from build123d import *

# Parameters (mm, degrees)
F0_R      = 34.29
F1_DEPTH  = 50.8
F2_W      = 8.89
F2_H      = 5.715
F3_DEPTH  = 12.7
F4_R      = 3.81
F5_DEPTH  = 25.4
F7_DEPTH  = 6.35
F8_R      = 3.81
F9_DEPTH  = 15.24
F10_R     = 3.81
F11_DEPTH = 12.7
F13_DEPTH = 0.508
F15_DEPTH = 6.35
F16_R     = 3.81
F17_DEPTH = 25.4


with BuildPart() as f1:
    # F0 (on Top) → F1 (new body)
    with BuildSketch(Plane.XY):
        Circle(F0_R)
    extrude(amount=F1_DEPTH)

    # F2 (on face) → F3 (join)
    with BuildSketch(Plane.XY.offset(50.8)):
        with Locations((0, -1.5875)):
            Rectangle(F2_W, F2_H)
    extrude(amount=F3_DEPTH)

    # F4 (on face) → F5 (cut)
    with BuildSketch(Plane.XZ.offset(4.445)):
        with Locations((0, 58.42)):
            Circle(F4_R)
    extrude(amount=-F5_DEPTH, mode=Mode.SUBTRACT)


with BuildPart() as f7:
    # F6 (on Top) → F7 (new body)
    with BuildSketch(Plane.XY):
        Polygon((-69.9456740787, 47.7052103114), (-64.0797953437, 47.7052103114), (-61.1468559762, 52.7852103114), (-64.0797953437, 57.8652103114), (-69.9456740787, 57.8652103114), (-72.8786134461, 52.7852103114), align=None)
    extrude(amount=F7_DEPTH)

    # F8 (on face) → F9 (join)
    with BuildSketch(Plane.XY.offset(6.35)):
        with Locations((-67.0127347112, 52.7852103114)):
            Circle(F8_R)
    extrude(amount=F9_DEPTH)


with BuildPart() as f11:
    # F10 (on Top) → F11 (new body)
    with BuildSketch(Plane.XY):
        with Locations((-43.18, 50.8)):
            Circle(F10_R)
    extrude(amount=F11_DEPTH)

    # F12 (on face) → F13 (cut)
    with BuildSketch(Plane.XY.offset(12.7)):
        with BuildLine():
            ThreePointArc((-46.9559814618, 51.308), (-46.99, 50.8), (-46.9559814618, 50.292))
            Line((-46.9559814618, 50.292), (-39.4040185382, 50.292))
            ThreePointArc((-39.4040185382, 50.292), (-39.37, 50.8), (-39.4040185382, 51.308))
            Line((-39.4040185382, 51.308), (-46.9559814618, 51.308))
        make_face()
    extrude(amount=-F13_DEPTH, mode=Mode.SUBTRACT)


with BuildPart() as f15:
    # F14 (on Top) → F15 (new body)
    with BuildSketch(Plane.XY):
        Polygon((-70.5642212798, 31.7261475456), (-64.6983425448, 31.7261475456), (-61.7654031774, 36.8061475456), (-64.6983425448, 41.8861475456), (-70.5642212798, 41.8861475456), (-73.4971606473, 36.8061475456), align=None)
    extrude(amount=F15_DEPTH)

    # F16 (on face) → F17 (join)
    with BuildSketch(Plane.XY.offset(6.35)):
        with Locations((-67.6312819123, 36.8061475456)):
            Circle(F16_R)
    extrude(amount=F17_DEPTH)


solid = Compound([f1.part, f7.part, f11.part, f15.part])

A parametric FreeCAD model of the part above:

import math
import FreeCAD as App
import Part
import Sketcher
Q = App.Units.Quantity

doc = App.newDocument("Part")
body = doc.addObject("PartDesign::Body", "Body")

sketch1 = doc.addObject("Sketcher::SketchObject", "Sketch")
body.addObject(sketch1)
sketch1.AttachmentSupport = (doc.XY_Plane, [""])
sketch1.MapMode = "FlatFace"
sketch1.addGeometry(Part.Circle(App.Vector(0, 0, 0), App.Vector(0, 0, 1), 34), False)
sketch1.addConstraint([
    Sketcher.Constraint("Coincident", 0, 3, -1, 1),
    Sketcher.Constraint("Diameter", 0, Q("2.7 in")),
])
pad1 = doc.addObject("PartDesign::Pad", "Pad")
body.addObject(pad1)
pad1.Profile = sketch1
pad1.Length = Q("2 in")

sketch2 = doc.addObject("Sketcher::SketchObject", "Sketch001")
body.addObject(sketch2)
sketch2.AttachmentSupport = (doc.XY_Plane, [""])
sketch2.MapMode = "FlatFace"
sketch2.AttachmentOffset = App.Placement(App.Vector(0, 0, 2 * 25.4), App.Rotation())
sketch2.addGeometry([
    Part.LineSegment(App.Vector(-4, 1, 0), App.Vector(-4, -4, 0)),
    Part.LineSegment(App.Vector(-4, -4, 0), App.Vector(4, -4, 0)),
    Part.LineSegment(App.Vector(4, -4, 0), App.Vector(4, 1, 0)),
    Part.LineSegment(App.Vector(4, 1, 0), App.Vector(-4, 1, 0)),
], False)
sketch2.addConstraint([
    Sketcher.Constraint("Coincident", 0, 2, 1, 1),
    Sketcher.Constraint("Coincident", 1, 2, 2, 1),
    Sketcher.Constraint("Coincident", 2, 2, 3, 1),
    Sketcher.Constraint("Coincident", 3, 2, 0, 1),
    Sketcher.Constraint("Vertical", 0),
    Sketcher.Constraint("Horizontal", 1),
    Sketcher.Constraint("Vertical", 2),
    Sketcher.Constraint("Horizontal", 3),
    Sketcher.Constraint("DistanceX", 1, 1, 1, 2, Q("0.35 in")),
    Sketcher.Constraint("DistanceY", 0, 2, 0, 1, Q("0.225 in")),
    Sketcher.Constraint("DistanceY", -1, 1, 2, 2, Q("0.05 in")),
    Sketcher.Constraint("DistanceX", 0, 2, -1, 1, Q("0.175 in")),
])
pad2 = doc.addObject("PartDesign::Pad", "Pad001")
body.addObject(pad2)
pad2.Profile = sketch2
pad2.Length = Q("0.5 in")

sketch3 = doc.addObject("Sketcher::SketchObject", "Sketch002")
body.addObject(sketch3)
sketch3.AttachmentSupport = (doc.XZ_Plane, [""])
sketch3.MapMode = "FlatFace"
sketch3.AttachmentOffset = App.Placement(App.Vector(0, 0, 0.175 * 25.4), App.Rotation())
sketch3.addGeometry(Part.Circle(App.Vector(0, 58.4, 0), App.Vector(0, 0, 1), 3.8), False)
sketch3.addConstraint([
    Sketcher.Constraint("PointOnObject", 0, 3, -2),
    Sketcher.Constraint("Diameter", 0, Q("0.3 in")),
    Sketcher.Constraint("DistanceY", -1, 1, 0, 3, Q("2.3 in")),
])
pocket1 = doc.addObject("PartDesign::Pocket", "Pocket")
body.addObject(pocket1)
pocket1.Profile = sketch3
pocket1.Length = Q("1 in")
body2 = doc.addObject("PartDesign::Body", "Body001")

sketch4 = doc.addObject("Sketcher::SketchObject", "Sketch003")
body2.addObject(sketch4)
sketch4.AttachmentSupport = (doc.getObject("XY_Plane001"), [""])
sketch4.MapMode = "FlatFace"
sketch4.addGeometry([
    Part.LineSegment(App.Vector(-70, 48, 0), App.Vector(-64, 48, 0)),
    Part.LineSegment(App.Vector(-64, 48, 0), App.Vector(-61, 53, 0)),
    Part.LineSegment(App.Vector(-61, 53, 0), App.Vector(-64, 58, 0)),
    Part.LineSegment(App.Vector(-64, 58, 0), App.Vector(-70, 58, 0)),
    Part.LineSegment(App.Vector(-70, 58, 0), App.Vector(-73, 53, 0)),
    Part.LineSegment(App.Vector(-73, 53, 0), App.Vector(-70, 48, 0)),
], False)
sketch4.addConstraint([
    Sketcher.Constraint("Coincident", 0, 2, 1, 1),
    Sketcher.Constraint("Coincident", 1, 2, 2, 1),
    Sketcher.Constraint("Coincident", 2, 2, 3, 1),
    Sketcher.Constraint("Coincident", 3, 2, 4, 1),
    Sketcher.Constraint("Coincident", 4, 2, 5, 1),
    Sketcher.Constraint("Coincident", 5, 2, 0, 1),
    Sketcher.Constraint("Horizontal", 0),
    Sketcher.Constraint("Horizontal", 3),
    Sketcher.Constraint("Parallel", 1, 4),
    Sketcher.Constraint("Parallel", 2, 5),
    Sketcher.Constraint("Horizontal", 1, 2, 4, 2),
    Sketcher.Constraint("Vertical", 0, 2, 2, 2),
    Sketcher.Constraint("Vertical", 3, 2, 5, 2),
    Sketcher.Constraint("Angle", 1, Q("60 deg")),
    Sketcher.Constraint("DistanceY", 0, 2, 1, 2, Q("0.2 in")),
    Sketcher.Constraint("DistanceX", 0, 1, 0, 2, Q("5.865879 mm")),
    Sketcher.Constraint("DistanceY", -1, 1, 0, 2, Q("47.70521 mm")),
    Sketcher.Constraint("DistanceX", 0, 2, -1, 1, Q("64.079795 mm")),
])
pad3 = doc.addObject("PartDesign::Pad", "Pad002")
body2.addObject(pad3)
pad3.Profile = sketch4
pad3.Length = Q("0.25 in")

sketch5 = doc.addObject("Sketcher::SketchObject", "Sketch004")
body2.addObject(sketch5)
sketch5.AttachmentSupport = (doc.getObject("XY_Plane001"), [""])
sketch5.MapMode = "FlatFace"
sketch5.AttachmentOffset = App.Placement(App.Vector(0, 0, 0.25 * 25.4), App.Rotation())
sketch5.addGeometry(Part.Circle(App.Vector(-67, 52.8, 0), App.Vector(0, 0, 1), 3.8), False)
sketch5.addConstraint([
    Sketcher.Constraint("Diameter", 0, Q("0.3 in")),
    Sketcher.Constraint("DistanceY", -1, 1, 0, 3, Q("52.78521 mm")),
    Sketcher.Constraint("DistanceX", 0, 3, -1, 1, Q("67.012735 mm")),
])
pad4 = doc.addObject("PartDesign::Pad", "Pad003")
body2.addObject(pad4)
pad4.Profile = sketch5
pad4.Length = Q("0.6 in")
body3 = doc.addObject("PartDesign::Body", "Body002")

sketch6 = doc.addObject("Sketcher::SketchObject", "Sketch005")
body3.addObject(sketch6)
sketch6.AttachmentSupport = (doc.getObject("XY_Plane002"), [""])
sketch6.MapMode = "FlatFace"
sketch6.addGeometry(Part.Circle(App.Vector(-43.2, 50.8, 0), App.Vector(0, 0, 1), 3.8), False)
sketch6.addConstraint([
    Sketcher.Constraint("Diameter", 0, Q("0.3 in")),
    Sketcher.Constraint("DistanceY", -1, 1, 0, 3, Q("2 in")),
    Sketcher.Constraint("DistanceX", 0, 3, -1, 1, Q("1.7 in")),
])
pad5 = doc.addObject("PartDesign::Pad", "Pad004")
body3.addObject(pad5)
pad5.Profile = sketch6
pad5.Length = Q("0.5 in")

sketch7 = doc.addObject("Sketcher::SketchObject", "Sketch006")
body3.addObject(sketch7)
sketch7.AttachmentSupport = (doc.getObject("XY_Plane002"), [""])
sketch7.MapMode = "FlatFace"
sketch7.AttachmentOffset = App.Placement(App.Vector(0, 0, 0.5 * 25.4), App.Rotation())
sketch7.addGeometry([
    Part.ArcOfCircle(Part.Circle(App.Vector(-43.2, 50.8, 0), App.Vector(0, 0, 1), 3.8), math.radians(172.34), math.radians(187.66)),
    Part.LineSegment(App.Vector(-47, 50.3, 0), App.Vector(-39.4, 50.3, 0)),
    Part.ArcOfCircle(Part.Circle(App.Vector(-43.2, 50.8, 0), App.Vector(0, 0, 1), 3.8), math.radians(-7.66), math.radians(7.66)),
    Part.LineSegment(App.Vector(-39.4, 51.3, 0), App.Vector(-47, 51.3, 0)),
], False)
sketch7.addConstraint([
    Sketcher.Constraint("Coincident", 0, 2, 1, 1),
    Sketcher.Constraint("Coincident", 1, 2, 2, 1),
    Sketcher.Constraint("Coincident", 2, 2, 3, 1),
    Sketcher.Constraint("Coincident", 3, 2, 0, 1),
    Sketcher.Constraint("Horizontal", 1),
    Sketcher.Constraint("Horizontal", 3),
    Sketcher.Constraint("Coincident", 2, 3, 0, 3),
    Sketcher.Constraint("Equal", 0, 2),
    Sketcher.Constraint("Vertical", 1, 2, 2, 2),
    Sketcher.Constraint("Radius", 0, Q("0.15 in")),
    Sketcher.Constraint("DistanceY", -1, 1, 0, 3, Q("2 in")),
    Sketcher.Constraint("DistanceX", 0, 3, -1, 1, Q("1.7 in")),
    Sketcher.Constraint("DistanceY", -1, 1, 0, 2, Q("1.98 in")),
])
pocket2 = doc.addObject("PartDesign::Pocket", "Pocket001")
body3.addObject(pocket2)
pocket2.Profile = sketch7
pocket2.Length = Q("0.02 in")
body4 = doc.addObject("PartDesign::Body", "Body003")

sketch8 = doc.addObject("Sketcher::SketchObject", "Sketch007")
body4.addObject(sketch8)
sketch8.AttachmentSupport = (doc.getObject("XY_Plane003"), [""])
sketch8.MapMode = "FlatFace"
sketch8.addGeometry([
    Part.LineSegment(App.Vector(-71, 32, 0), App.Vector(-65, 32, 0)),
    Part.LineSegment(App.Vector(-65, 32, 0), App.Vector(-62, 37, 0)),
    Part.LineSegment(App.Vector(-62, 37, 0), App.Vector(-65, 42, 0)),
    Part.LineSegment(App.Vector(-65, 42, 0), App.Vector(-71, 42, 0)),
    Part.LineSegment(App.Vector(-71, 42, 0), App.Vector(-73, 37, 0)),
    Part.LineSegment(App.Vector(-73, 37, 0), App.Vector(-71, 32, 0)),
], False)
sketch8.addConstraint([
    Sketcher.Constraint("Coincident", 0, 2, 1, 1),
    Sketcher.Constraint("Coincident", 1, 2, 2, 1),
    Sketcher.Constraint("Coincident", 2, 2, 3, 1),
    Sketcher.Constraint("Coincident", 3, 2, 4, 1),
    Sketcher.Constraint("Coincident", 4, 2, 5, 1),
    Sketcher.Constraint("Coincident", 5, 2, 0, 1),
    Sketcher.Constraint("Horizontal", 0),
    Sketcher.Constraint("Horizontal", 3),
    Sketcher.Constraint("Parallel", 1, 4),
    Sketcher.Constraint("Parallel", 2, 5),
    Sketcher.Constraint("Horizontal", 1, 2, 4, 2),
    Sketcher.Constraint("Vertical", 0, 2, 2, 2),
    Sketcher.Constraint("Vertical", 3, 2, 5, 2),
    Sketcher.Constraint("Angle", 1, Q("60 deg")),
    Sketcher.Constraint("DistanceY", 0, 2, 1, 2, Q("0.2 in")),
    Sketcher.Constraint("DistanceX", 0, 1, 0, 2, Q("5.865879 mm")),
    Sketcher.Constraint("DistanceX", 3, 2, -1, 1, Q("70.564221 mm")),
    Sketcher.Constraint("DistanceY", -1, 1, 0, 2, Q("31.726148 mm")),
])
pad6 = doc.addObject("PartDesign::Pad", "Pad005")
body4.addObject(pad6)
pad6.Profile = sketch8
pad6.Length = Q("0.25 in")

sketch9 = doc.addObject("Sketcher::SketchObject", "Sketch008")
body4.addObject(sketch9)
sketch9.AttachmentSupport = (doc.getObject("XY_Plane003"), [""])
sketch9.MapMode = "FlatFace"
sketch9.AttachmentOffset = App.Placement(App.Vector(0, 0, 0.25 * 25.4), App.Rotation())
sketch9.addGeometry(Part.Circle(App.Vector(-67.6, 36.8, 0), App.Vector(0, 0, 1), 3.8), False)
sketch9.addConstraint([
    Sketcher.Constraint("Diameter", 0, Q("0.3 in")),
    Sketcher.Constraint("DistanceX", 0, 3, -1, 1, Q("67.631282 mm")),
    Sketcher.Constraint("DistanceY", -1, 1, 0, 3, Q("36.806148 mm")),
])
pad7 = doc.addObject("PartDesign::Pad", "Pad006")
body4.addObject(pad7)
pad7.Profile = sketch9
pad7.Length = Q("1 in")

doc.recompute()
